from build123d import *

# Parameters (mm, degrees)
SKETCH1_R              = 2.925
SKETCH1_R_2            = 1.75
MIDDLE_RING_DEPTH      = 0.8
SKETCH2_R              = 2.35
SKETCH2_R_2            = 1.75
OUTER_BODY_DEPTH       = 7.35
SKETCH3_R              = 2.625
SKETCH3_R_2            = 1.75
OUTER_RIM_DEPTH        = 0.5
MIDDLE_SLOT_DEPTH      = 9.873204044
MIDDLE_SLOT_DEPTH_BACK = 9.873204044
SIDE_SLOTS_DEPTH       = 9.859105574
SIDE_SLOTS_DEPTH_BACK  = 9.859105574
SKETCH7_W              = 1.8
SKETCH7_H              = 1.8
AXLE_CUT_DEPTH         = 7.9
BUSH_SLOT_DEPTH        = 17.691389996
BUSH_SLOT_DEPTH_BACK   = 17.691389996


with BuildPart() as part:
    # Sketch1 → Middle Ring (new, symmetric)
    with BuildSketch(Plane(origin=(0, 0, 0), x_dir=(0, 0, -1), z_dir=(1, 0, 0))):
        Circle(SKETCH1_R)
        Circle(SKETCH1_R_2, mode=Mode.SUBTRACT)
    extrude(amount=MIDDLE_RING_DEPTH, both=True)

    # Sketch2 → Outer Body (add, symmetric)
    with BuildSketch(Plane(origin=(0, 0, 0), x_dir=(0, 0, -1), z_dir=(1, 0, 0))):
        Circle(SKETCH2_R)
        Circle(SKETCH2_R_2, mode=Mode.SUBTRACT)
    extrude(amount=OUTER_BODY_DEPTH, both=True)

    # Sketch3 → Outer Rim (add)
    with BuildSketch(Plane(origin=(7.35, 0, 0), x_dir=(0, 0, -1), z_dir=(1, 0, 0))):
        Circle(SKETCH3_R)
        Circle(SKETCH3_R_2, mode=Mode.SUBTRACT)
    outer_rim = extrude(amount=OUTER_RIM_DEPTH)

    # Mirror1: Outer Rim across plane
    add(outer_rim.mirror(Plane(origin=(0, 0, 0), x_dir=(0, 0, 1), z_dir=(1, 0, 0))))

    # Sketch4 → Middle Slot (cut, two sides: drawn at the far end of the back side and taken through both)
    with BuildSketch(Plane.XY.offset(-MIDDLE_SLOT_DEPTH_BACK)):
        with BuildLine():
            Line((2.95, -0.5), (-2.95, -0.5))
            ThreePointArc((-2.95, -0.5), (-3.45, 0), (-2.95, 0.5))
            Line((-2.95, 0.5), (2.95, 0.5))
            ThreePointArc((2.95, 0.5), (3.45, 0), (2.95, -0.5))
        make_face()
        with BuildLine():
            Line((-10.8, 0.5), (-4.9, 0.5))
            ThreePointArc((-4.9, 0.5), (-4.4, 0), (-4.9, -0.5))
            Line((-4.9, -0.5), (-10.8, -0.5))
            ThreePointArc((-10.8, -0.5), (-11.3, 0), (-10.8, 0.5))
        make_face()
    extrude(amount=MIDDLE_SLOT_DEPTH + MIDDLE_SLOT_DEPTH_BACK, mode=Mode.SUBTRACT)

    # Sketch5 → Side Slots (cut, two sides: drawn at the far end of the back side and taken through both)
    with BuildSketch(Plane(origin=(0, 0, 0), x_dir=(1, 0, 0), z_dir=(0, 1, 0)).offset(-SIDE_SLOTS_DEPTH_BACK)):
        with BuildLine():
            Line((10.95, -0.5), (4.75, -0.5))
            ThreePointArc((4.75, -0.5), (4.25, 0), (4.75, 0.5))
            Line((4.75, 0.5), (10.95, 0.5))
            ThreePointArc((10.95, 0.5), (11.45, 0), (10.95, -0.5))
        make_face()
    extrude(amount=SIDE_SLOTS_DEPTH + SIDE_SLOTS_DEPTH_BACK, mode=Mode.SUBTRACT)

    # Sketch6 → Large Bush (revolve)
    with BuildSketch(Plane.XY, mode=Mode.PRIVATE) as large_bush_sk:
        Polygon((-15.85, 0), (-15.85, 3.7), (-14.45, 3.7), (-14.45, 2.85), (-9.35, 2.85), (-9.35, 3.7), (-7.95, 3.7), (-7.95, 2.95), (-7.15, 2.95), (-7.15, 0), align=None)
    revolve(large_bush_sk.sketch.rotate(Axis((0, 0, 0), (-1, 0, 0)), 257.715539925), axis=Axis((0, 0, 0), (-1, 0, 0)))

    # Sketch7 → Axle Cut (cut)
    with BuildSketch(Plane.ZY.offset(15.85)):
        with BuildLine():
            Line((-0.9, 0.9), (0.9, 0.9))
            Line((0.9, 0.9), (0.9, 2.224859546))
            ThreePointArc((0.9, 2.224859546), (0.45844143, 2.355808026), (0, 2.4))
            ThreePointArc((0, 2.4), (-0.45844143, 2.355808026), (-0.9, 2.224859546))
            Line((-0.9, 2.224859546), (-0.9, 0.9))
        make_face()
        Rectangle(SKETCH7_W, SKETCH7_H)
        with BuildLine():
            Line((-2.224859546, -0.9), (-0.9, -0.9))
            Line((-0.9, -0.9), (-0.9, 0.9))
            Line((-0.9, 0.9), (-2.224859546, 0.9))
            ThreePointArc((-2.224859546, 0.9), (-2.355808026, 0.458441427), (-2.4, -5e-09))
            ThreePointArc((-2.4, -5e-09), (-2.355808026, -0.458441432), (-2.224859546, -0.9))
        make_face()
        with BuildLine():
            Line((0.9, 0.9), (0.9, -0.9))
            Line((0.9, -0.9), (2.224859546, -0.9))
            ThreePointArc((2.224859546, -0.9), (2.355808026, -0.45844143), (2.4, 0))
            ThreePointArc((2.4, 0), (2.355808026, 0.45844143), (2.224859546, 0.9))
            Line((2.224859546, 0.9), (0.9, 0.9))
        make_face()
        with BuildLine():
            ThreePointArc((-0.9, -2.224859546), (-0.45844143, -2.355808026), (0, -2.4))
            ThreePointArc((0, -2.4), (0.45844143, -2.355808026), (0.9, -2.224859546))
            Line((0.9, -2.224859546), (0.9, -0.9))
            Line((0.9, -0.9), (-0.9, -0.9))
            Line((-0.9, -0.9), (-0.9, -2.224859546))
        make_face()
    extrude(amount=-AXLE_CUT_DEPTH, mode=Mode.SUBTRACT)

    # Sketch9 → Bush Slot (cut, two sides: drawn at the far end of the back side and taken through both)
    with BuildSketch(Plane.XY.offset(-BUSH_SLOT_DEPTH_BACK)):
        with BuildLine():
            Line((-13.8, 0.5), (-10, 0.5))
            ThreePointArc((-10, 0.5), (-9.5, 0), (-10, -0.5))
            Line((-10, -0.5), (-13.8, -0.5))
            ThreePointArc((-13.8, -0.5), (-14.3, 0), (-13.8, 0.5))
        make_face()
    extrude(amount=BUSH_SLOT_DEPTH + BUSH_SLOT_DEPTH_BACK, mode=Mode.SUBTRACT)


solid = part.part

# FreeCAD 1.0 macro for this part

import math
import FreeCAD as App
import Part
import Sketcher
from FreeCAD import Vector

doc = App.newDocument("Part")
params = doc.addObject("Spreadsheet::Sheet", "Params")
for row, (alias, value) in enumerate([
    ("sketch1_diameter", "3.5 mm"),
    ("sketch1_diameter2", "5.85 mm"),
    ("pad1_length", "1.6 mm"),
    ("sketch2_diameter", "4.7 mm"),
    ("sketch2_diameter2", "3.5 mm"),
    ("pad2_length", "14.7 mm"),
    ("sketch3_diameter", "3.5 mm"),
    ("sketch3_diameter2", "5.25 mm"),
    ("pad3_length", "0.5 mm"),
    ("sketch4_radius", "0.5 mm"),
    ("sketch4_width", "5.9 mm"),
    ("sketch5_radius", "0.5 mm"),
    ("sketch5_width", "6.2 mm"),
    ("sketch6_width", "8.7 mm"),
    ("sketch6_width2", "0.8 mm"),
    ("sketch6_width3", "1.4 mm"),
    ("sketch6_height", "3.7 mm"),
    ("sketch6_height2", "2.95 mm"),
    ("revolution_angle", "360 deg"),
    ("sketch7_radius", "2.4 mm"),
    ("pocket3_length", "7.9 mm"),
    ("sketch8_radius", "0.5 mm"),
    ("sketch8_width", "3.8 mm"),
], start=1):
    params.set(f"A{row}", alias)
    params.set(f"B{row}", "=" + value)
    params.setAlias(f"B{row}", alias)

body = doc.addObject("PartDesign::Body", "Body")

sketch1 = body.newObject("Sketcher::SketchObject", "Sketch")
sketch1.AttachmentSupport = (doc.getObject("YZ_Plane"), [""])
sketch1.MapMode = "FlatFace"
sketch1.addGeometry(Part.Circle(Vector(0, 0, 0), Vector(0, 0, 1), 2.925), False)
sketch1.addGeometry(Part.Circle(Vector(0, 0, 0), Vector(0, 0, 1), 1.75), False)
sketch1.addConstraint(Sketcher.Constraint("Coincident", 0, 3, -1, 1))
sketch1.addConstraint(Sketcher.Constraint("Coincident", 1, 3, -1, 1))
sketch1.addConstraint(Sketcher.Constraint("Diameter", 1, 3.5))
sketch1.addConstraint(Sketcher.Constraint("Diameter", 0, 5.85))
sketch1.setExpression("Constraints[2]", "Params.sketch1_diameter")
sketch1.setExpression("Constraints[3]", "Params.sketch1_diameter2")
pad1 = body.newObject("PartDesign::Pad", "Pad")
pad1.Profile = sketch1
pad1.setExpression("Length", "Params.pad1_length")
pad1.Midplane = True

sketch2 = body.newObject("Sketcher::SketchObject", "Sketch001")
sketch2.AttachmentSupport = (doc.getObject("YZ_Plane"), [""])
sketch2.MapMode = "FlatFace"
sketch2.addGeometry(Part.Circle(Vector(0, 0, 0), Vector(0, 0, 1), 2.35), False)
sketch2.addGeometry(Part.Circle(Vector(0, 0, 0), Vector(0, 0, 1), 1.75), False)
sketch2.addConstraint(Sketcher.Constraint("Coincident", 0, 3, -1, 1))
sketch2.addConstraint(Sketcher.Constraint("Coincident", 1, 3, -1, 1))
sketch2.addConstraint(Sketcher.Constraint("Diameter", 0, 4.7))
sketch2.addConstraint(Sketcher.Constraint("Diameter", 1, 3.5))
sketch2.setExpression("Constraints[2]", "Params.sketch2_diameter")
sketch2.setExpression("Constraints[3]", "Params.sketch2_diameter2")
pad2 = body.newObject("PartDesign::Pad", "Pad001")
pad2.Profile = sketch2
pad2.setExpression("Length", "Params.pad2_length")
pad2.Midplane = True

sketch3 = body.newObject("Sketcher::SketchObject", "Sketch002")
sketch3.AttachmentSupport = (doc.getObject("YZ_Plane"), [""])
sketch3.MapMode = "FlatFace"
sketch3.AttachmentOffset = App.Placement(Vector(0, 0, 7.35), App.Rotation())
sketch3.addGeometry(Part.Circle(Vector(0, 0, 0), Vector(0, 0, 1), 2.625), False)
sketch3.addGeometry(Part.Circle(Vector(0, 0, 0), Vector(0, 0, 1), 1.75), False)
sketch3.addConstraint(Sketcher.Constraint("Coincident", 0, 3, -1, 1))
sketch3.addConstraint(Sketcher.Constraint("Coincident", 1, 3, -1, 1))
sketch3.addConstraint(Sketcher.Constraint("Diameter", 1, 3.5))
sketch3.addConstraint(Sketcher.Constraint("Diameter", 0, 5.25))
sketch3.setExpression("Constraints[2]", "Params.sketch3_diameter")
sketch3.setExpression("Constraints[3]", "Params.sketch3_diameter2")
pad3 = body.newObject("PartDesign::Pad", "Pad002")
pad3.Profile = sketch3
pad3.setExpression("Length", "Params.pad3_length")
doc.recompute()

mirrored = body.newObject("PartDesign::Mirrored", "Mirrored")
mirrored.Originals = [pad3]
mirrored.MirrorPlane = (doc.getObject("YZ_Plane"), [""])
body.Tip = mirrored

sketch4 = body.newObject("Sketcher::SketchObject", "Sketch003")
sketch4.AttachmentSupport = (doc.getObject("XY_Plane"), [""])
sketch4.MapMode = "FlatFace"
sketch4.addGeometry(Part.LineSegment(Vector(-2.95, -0.5, 0), Vector(2.95, -0.5, 0)), False)
sketch4.addGeometry(Part.ArcOfCircle(Part.Circle(Vector(2.95, 0, 0), Vector(0, 0, 1), 0.5), math.radians(-90), math.radians(90)), False)
sketch4.addGeometry(Part.LineSegment(Vector(2.95, 0.5, 0), Vector(-2.95, 0.5, 0)), False)
sketch4.addGeometry(Part.ArcOfCircle(Part.Circle(Vector(-2.95, 0, 0), Vector(0, 0, 1), 0.5), math.radians(90), math.radians(270)), False)
sketch4.addGeometry(Part.LineSegment(Vector(-4.9, 0.5, 0), Vector(-10.8, 0.5, 0)), False)
sketch4.addGeometry(Part.ArcOfCircle(Part.Circle(Vector(-10.8, 0, 0), Vector(0, 0, 1), 0.5), math.radians(90), math.radians(270)), False)
sketch4.addGeometry(Part.LineSegment(Vector(-10.8, -0.5, 0), Vector(-4.9, -0.5, 0)), False)
sketch4.addGeometry(Part.ArcOfCircle(Part.Circle(Vector(-4.9, 0, 0), Vector(0, 0, 1), 0.5), math.radians(-90), math.radians(90)), False)
sketch4.addConstraint(Sketcher.Constraint("Tangent", 0, 2, 1, 1))
sketch4.addConstraint(Sketcher.Constraint("Tangent", 1, 2, 2, 1))
sketch4.addConstraint(Sketcher.Constraint("Tangent", 2, 2, 3, 1))
sketch4.addConstraint(Sketcher.Constraint("Tangent", 3, 2, 0, 1))
sketch4.addConstraint(Sketcher.Constraint("Tangent", 4, 2, 5, 1))
sketch4.addConstraint(Sketcher.Constraint("Tangent", 5, 2, 6, 1))
sketch4.addConstraint(Sketcher.Constraint("Tangent", 6, 2, 7, 1))
sketch4.addConstraint(Sketcher.Constraint("Tangent", 7, 2, 4, 1))
sketch4.addConstraint(Sketcher.Constraint("Horizontal", 0))
sketch4.addConstraint(Sketcher.Constraint("Horizontal", 2))
sketch4.addConstraint(Sketcher.Constraint("Horizontal", 4))
sketch4.addConstraint(Sketcher.Constraint("Horizontal", 6))
sketch4.addConstraint(Sketcher.Constraint("Equal", 3, 5))
sketch4.addConstraint(Sketcher.Constraint("Symmetric", 1, 3, 3, 3, -1, 1))
sketch4.addConstraint(Sketcher.Constraint("PointOnObject", 5, 3, -1))
sketch4.addConstraint(Sketcher.Constraint("Equal", 2, 4))
sketch4.addConstraint(Sketcher.Constraint("Radius", 1, 0.5))
sketch4.addConstraint(Sketcher.Constraint("DistanceX", 0, 1, 0, 2, 5.9))
sketch4.addConstraint(Sketcher.Constraint("DistanceX", 5, 3, -1, 1, 10.8))
sketch4.setExpression("Constraints[16]", "Params.sketch4_radius")
sketch4.setExpression("Constraints[17]", "Params.sketch4_width")
pocket1 = body.newObject("PartDesign::Pocket", "Pocket")
pocket1.Profile = sketch4
pocket1.Type = "ThroughAll"
pocket1.Midplane = True

sketch5 = body.newObject("Sketcher::SketchObject", "Sketch004")
sketch5.AttachmentSupport = (doc.getObject("XZ_Plane"), [""])
sketch5.MapMode = "FlatFace"
sketch5.addGeometry(Part.LineSegment(Vector(4.75, 0.5, 0), Vector(10.95, 0.5, 0)), False)
sketch5.addGeometry(Part.ArcOfCircle(Part.Circle(Vector(10.95, 0, 0), Vector(0, 0, 1), 0.5), math.radians(-90), math.radians(90)), False)
sketch5.addGeometry(Part.LineSegment(Vector(10.95, -0.5, 0), Vector(4.75, -0.5, 0)), False)
sketch5.addGeometry(Part.ArcOfCircle(Part.Circle(Vector(4.75, 0, 0), Vector(0, 0, 1), 0.5), math.radians(90), math.radians(270)), False)
sketch5.addConstraint(Sketcher.Constraint("Tangent", 0, 2, 1, 2))
sketch5.addConstraint(Sketcher.Constraint("Tangent", 1, 1, 2, 1))
sketch5.addConstraint(Sketcher.Constraint("Tangent", 2, 2, 3, 2))
sketch5.addConstraint(Sketcher.Constraint("Tangent", 3, 1, 0, 1))
sketch5.addConstraint(Sketcher.Constraint("Horizontal", 0))
sketch5.addConstraint(Sketcher.Constraint("Horizontal", 2))
sketch5.addConstraint(Sketcher.Constraint("PointOnObject", 1, 3, -1))
sketch5.addConstraint(Sketcher.Constraint("Radius", 1, 0.5))
sketch5.addConstraint(Sketcher.Constraint("DistanceX", 0, 1, 0, 2, 6.2))
sketch5.addConstraint(Sketcher.Constraint("DistanceX", -1, 1, 1, 3, 10.95))
sketch5.setExpression("Constraints[7]", "Params.sketch5_radius")
sketch5.setExpression("Constraints[8]", "Params.sketch5_width")
pocket2 = body.newObject("PartDesign::Pocket", "Pocket001")
pocket2.Profile = sketch5
pocket2.Type = "ThroughAll"
pocket2.Midplane = True

sketch6 = body.newObject("Sketcher::SketchObject", "Sketch005")
sketch6.AttachmentSupport = (doc.getObject("XY_Plane"), [""])
sketch6.MapMode = "FlatFace"
sketch6.addGeometry(Part.LineSegment(Vector(-15.85, 3.7, 0), Vector(-15.85, 0, 0)), False)
sketch6.addGeometry(Part.LineSegment(Vector(-15.85, 0, 0), Vector(-7.15, 0, 0)), False)
sketch6.addGeometry(Part.LineSegment(Vector(-7.15, 0, 0), Vector(-7.15, 2.95, 0)), False)
sketch6.addGeometry(Part.LineSegment(Vector(-7.15, 2.95, 0), Vector(-7.95, 2.95, 0)), False)
sketch6.addGeometry(Part.LineSegment(Vector(-7.95, 2.95, 0), Vector(-7.95, 3.7, 0)), False)
sketch6.addGeometry(Part.LineSegment(Vector(-7.95, 3.7, 0), Vector(-9.35, 3.7, 0)), False)
sketch6.addGeometry(Part.LineSegment(Vector(-9.35, 3.7, 0), Vector(-9.35, 2.85, 0)), False)
sketch6.addGeometry(Part.LineSegment(Vector(-9.35, 2.85, 0), Vector(-14.45, 2.85, 0)), False)
sketch6.addGeometry(Part.LineSegment(Vector(-14.45, 2.85, 0), Vector(-14.45, 3.7, 0)), False)
sketch6.addGeometry(Part.LineSegment(Vector(-14.45, 3.7, 0), Vector(-15.85, 3.7, 0)), False)
sketch6.addConstraint(Sketcher.Constraint("Coincident", 0, 2, 1, 1))
sketch6.addConstraint(Sketcher.Constraint("Coincident", 1, 2, 2, 1))
sketch6.addConstraint(Sketcher.Constraint("Coincident", 2, 2, 3, 1))
sketch6.addConstraint(Sketcher.Constraint("Coincident", 3, 2, 4, 1))
sketch6.addConstraint(Sketcher.Constraint("Coincident", 4, 2, 5, 1))
sketch6.addConstraint(Sketcher.Constraint("Coincident", 5, 2, 6, 1))
sketch6.addConstraint(Sketcher.Constraint("Coincident", 6, 2, 7, 1))
sketch6.addConstraint(Sketcher.Constraint("Coincident", 7, 2, 8, 1))
sketch6.addConstraint(Sketcher.Constraint("Coincident", 8, 2, 9, 1))
sketch6.addConstraint(Sketcher.Constraint("Coincident", 9, 2, 0, 1))
sketch6.addConstraint(Sketcher.Constraint("Vertical", 0))
sketch6.addConstraint(Sketcher.Constraint("Horizontal", 1))
sketch6.addConstraint(Sketcher.Constraint("Vertical", 2))
sketch6.addConstraint(Sketcher.Constraint("Horizontal", 3))
sketch6.addConstraint(Sketcher.Constraint("Vertical", 4))
sketch6.addConstraint(Sketcher.Constraint("Horizontal", 5))
sketch6.addConstraint(Sketcher.Constraint("Vertical", 6))
sketch6.addConstraint(Sketcher.Constraint("Horizontal", 7))
sketch6.addConstraint(Sketcher.Constraint("Vertical", 8))
sketch6.addConstraint(Sketcher.Constraint("Horizontal", 9))
sketch6.addConstraint(Sketcher.Constraint("PointOnObject", 0, 2, -1))
sketch6.addConstraint(Sketcher.Constraint("Horizontal", 5, 2, 8, 2))
sketch6.addConstraint(Sketcher.Constraint("Equal", 5, 9))
sketch6.addConstraint(Sketcher.Constraint("DistanceX", 1, 1, 1, 2, 8.7))
sketch6.addConstraint(Sketcher.Constraint("DistanceX", 3, 2, 3, 1, 0.8))
sketch6.addConstraint(Sketcher.Constraint("DistanceX", 5, 2, 5, 1, 1.4))
sketch6.addConstraint(Sketcher.Constraint("DistanceY", 0, 2, 0, 1, 3.7))
sketch6.addConstraint(Sketcher.Constraint("DistanceY", 2, 1, 2, 2, 2.95))
sketch6.addConstraint(Sketcher.Constraint("DistanceY", 6, 2, 6, 1, 0.85))
sketch6.addConstraint(Sketcher.Constraint("DistanceX", 0, 2, -1, 1, 15.85))
sketch6.setExpression("Constraints[23]", "Params.sketch6_width")
sketch6.setExpression("Constraints[24]", "Params.sketch6_width2")
sketch6.setExpression("Constraints[25]", "Params.sketch6_width3")
sketch6.setExpression("Constraints[26]", "Params.sketch6_height")
sketch6.setExpression("Constraints[27]", "Params.sketch6_height2")
revolution = body.newObject("PartDesign::Revolution", "Revolution")
revolution.Profile = sketch6
revolution.ReferenceAxis = (sketch6, ["H_Axis"])
revolution.setExpression("Angle", "Params.revolution_angle")

sketch7 = body.newObject("Sketcher::SketchObject", "Sketch006")
sketch7.AttachmentSupport = (doc.getObject("YZ_Plane"), [""])
sketch7.MapMode = "FlatFace"
sketch7.AttachmentOffset = App.Placement(Vector(0, 0, -15.85), App.Rotation())
sketch7.addGeometry(Part.ArcOfCircle(Part.Circle(Vector(0, 0, 0), Vector(0, 0, 1), 2.4), math.radians(0), math.radians(22.024313)), False)
sketch7.addGeometry(Part.ArcOfCircle(Part.Circle(Vector(0, 0, 0), Vector(0, 0, 1), 2.4), math.radians(-22.024313), math.radians(0)), False)
sketch7.addGeometry(Part.LineSegment(Vector(2.22486, -0.9, 0), Vector(0.9, -0.9, 0)), False)
sketch7.addGeometry(Part.LineSegment(Vector(0.9, -0.9, 0), Vector(0.9, -2.22486, 0)), False)
sketch7.addGeometry(Part.ArcOfCircle(Part.Circle(Vector(0, 0, 0), Vector(0, 0, 1), 2.4), math.radians(-90), math.radians(-67.975687)), False)
sketch7.addGeometry(Part.ArcOfCircle(Part.Circle(Vector(0, 0, 0), Vector(0, 0, 1), 2.4), math.radians(-112.024313), math.radians(-90)), False)
sketch7.addGeometry(Part.LineSegment(Vector(-0.9, -2.22486, 0), Vector(-0.9, -0.9, 0)), False)
sketch7.addGeometry(Part.LineSegment(Vector(-0.9, -0.9, 0), Vector(-2.22486, -0.9, 0)), False)
sketch7.addGeometry(Part.ArcOfCircle(Part.Circle(Vector(0, 0, 0), Vector(0, 0, 1), 2.4), math.radians(180), math.radians(202.024313)), False)
sketch7.addGeometry(Part.ArcOfCircle(Part.Circle(Vector(0, 0, 0), Vector(0, 0, 1), 2.4), math.radians(157.975687), math.radians(180)), False)
sketch7.addGeometry(Part.LineSegment(Vector(-2.22486, 0.9, 0), Vector(-0.9, 0.9, 0)), False)
sketch7.addGeometry(Part.LineSegment(Vector(-0.9, 0.9, 0), Vector(-0.9, 2.22486, 0)), False)
sketch7.addGeometry(Part.ArcOfCircle(Part.Circle(Vector(0, 0, 0), Vector(0, 0, 1), 2.4), math.radians(90), math.radians(112.024313)), False)
sketch7.addGeometry(Part.ArcOfCircle(Part.Circle(Vector(0, 0, 0), Vector(0, 0, 1), 2.4), math.radians(67.975687), math.radians(90)), False)
sketch7.addGeometry(Part.LineSegment(Vector(0.9, 2.22486, 0), Vector(0.9, 0.9, 0)), False)
sketch7.addGeometry(Part.LineSegment(Vector(0.9, 0.9, 0), Vector(2.22486, 0.9, 0)), False)
sketch7.addConstraint(Sketcher.Constraint("Tangent", 0, 1, 1, 2))
sketch7.addConstraint(Sketcher.Constraint("Coincident", 1, 1, 2, 1))
sketch7.addConstraint(Sketcher.Constraint("Coincident", 2, 2, 3, 1))
sketch7.addConstraint(Sketcher.Constraint("Coincident", 3, 2, 4, 2))
sketch7.addConstraint(Sketcher.Constraint("Tangent", 4, 1, 5, 2))
sketch7.addConstraint(Sketcher.Constraint("Coincident", 5, 1, 6, 1))
sketch7.addConstraint(Sketcher.Constraint("Coincident", 6, 2, 7, 1))
sketch7.addConstraint(Sketcher.Constraint("Coincident", 7, 2, 8, 2))
sketch7.addConstraint(Sketcher.Constraint("Tangent", 8, 1, 9, 2))
sketch7.addConstraint(Sketcher.Constraint("Coincident", 9, 1, 10, 1))
sketch7.addConstraint(Sketcher.Constraint("Coincident", 10, 2, 11, 1))
sketch7.addConstraint(Sketcher.Constraint("Coincident", 11, 2, 12, 2))
sketch7.addConstraint(Sketcher.Constraint("Tangent", 12, 1, 13, 2))
sketch7.addConstraint(Sketcher.Constraint("Coincident", 13, 1, 14, 1))
sketch7.addConstraint(Sketcher.Constraint("Coincident", 14, 2, 15, 1))
sketch7.addConstraint(Sketcher.Constraint("Coincident", 15, 2, 0, 2))
sketch7.addConstraint(Sketcher.Constraint("Horizontal", 2))
sketch7.addConstraint(Sketcher.Constraint("Vertical", 3))
sketch7.addConstraint(Sketcher.Constraint("Vertical", 6))
sketch7.addConstraint(Sketcher.Constraint("Horizontal", 7))
sketch7.addConstraint(Sketcher.Constraint("Horizontal", 10))
sketch7.addConstraint(Sketcher.Constraint("Vertical", 11))
sketch7.addConstraint(Sketcher.Constraint("Vertical", 14))
sketch7.addConstraint(Sketcher.Constraint("Horizontal", 15))
sketch7.addConstraint(Sketcher.Constraint("Coincident", 0, 3, -1, 1))
sketch7.addConstraint(Sketcher.Constraint("Coincident", 4, 3, -1, 1))
sketch7.addConstraint(Sketcher.Constraint("Coincident", 8, 3, -1, 1))
sketch7.addConstraint(Sketcher.Constraint("Coincident", 12, 3, -1, 1))
sketch7.addConstraint(Sketcher.Constraint("Equal", 0, 1))
sketch7.addConstraint(Sketcher.Constraint("Equal", 1, 4))
sketch7.addConstraint(Sketcher.Constraint("Equal", 4, 5))
sketch7.addConstraint(Sketcher.Constraint("Equal", 5, 8))
sketch7.addConstraint(Sketcher.Constraint("Equal", 8, 9))
sketch7.addConstraint(Sketcher.Constraint("Equal", 9, 12))
sketch7.addConstraint(Sketcher.Constraint("Equal", 12, 13))
sketch7.addConstraint(Sketcher.Constraint("Symmetric", 2, 2, 10, 2, -1, 1))
sketch7.addConstraint(Sketcher.Constraint("Symmetric", 6, 2, 14, 2, -1, 1))
sketch7.addConstraint(Sketcher.Constraint("Symmetric", 2, 2, 6, 2, -2))
sketch7.addConstraint(Sketcher.Constraint("PointOnObject", 0, 1, -1))
sketch7.addConstraint(Sketcher.Constraint("PointOnObject", 4, 1, -2))
sketch7.addConstraint(Sketcher.Constraint("PointOnObject", 8, 1, -1))
sketch7.addConstraint(Sketcher.Constraint("PointOnObject", 12, 1, -2))
sketch7.addConstraint(Sketcher.Constraint("Equal", 15, 3))
sketch7.addConstraint(Sketcher.Constraint("Radius", 0, 2.4))
sketch7.addConstraint(Sketcher.Constraint("DistanceY", 1, 1, -1, 1, 0.9))
sketch7.setExpression("Constraints[43]", "Params.sketch7_radius")
pocket3 = body.newObject("PartDesign::Pocket", "Pocket002")
pocket3.Profile = sketch7
pocket3.setExpression("Length", "Params.pocket3_length")
pocket3.Reversed = True

sketch8 = body.newObject("Sketcher::SketchObject", "Sketch007")
sketch8.AttachmentSupport = (doc.getObject("XY_Plane"), [""])
sketch8.MapMode = "FlatFace"
sketch8.addGeometry(Part.LineSegment(Vector(-10, 0.5, 0), Vector(-13.8, 0.5, 0)), False)
sketch8.addGeometry(Part.ArcOfCircle(Part.Circle(Vector(-13.8, 0, 0), Vector(0, 0, 1), 0.5), math.radians(90), math.radians(270)), False)
sketch8.addGeometry(Part.LineSegment(Vector(-13.8, -0.5, 0), Vector(-10, -0.5, 0)), False)
sketch8.addGeometry(Part.ArcOfCircle(Part.Circle(Vector(-10, 0, 0), Vector(0, 0, 1), 0.5), math.radians(-90), math.radians(90)), False)
sketch8.addConstraint(Sketcher.Constraint("Tangent", 0, 2, 1, 1))
sketch8.addConstraint(Sketcher.Constraint("Tangent", 1, 2, 2, 1))
sketch8.addConstraint(Sketcher.Constraint("Tangent", 2, 2, 3, 1))
sketch8.addConstraint(Sketcher.Constraint("Tangent", 3, 2, 0, 1))
sketch8.addConstraint(Sketcher.Constraint("Horizontal", 0))
sketch8.addConstraint(Sketcher.Constraint("Horizontal", 2))
sketch8.addConstraint(Sketcher.Constraint("PointOnObject", 1, 3, -1))
sketch8.addConstraint(Sketcher.Constraint("Radius", 1, 0.5))
sketch8.addConstraint(Sketcher.Constraint("DistanceX", 0, 2, 0, 1, 3.8))
sketch8.addConstraint(Sketcher.Constraint("DistanceX", 3, 3, -1, 1, 10.0))
sketch8.setExpression("Constraints[7]", "Params.sketch8_radius")
sketch8.setExpression("Constraints[8]", "Params.sketch8_width")
pocket4 = body.newObject("PartDesign::Pocket", "Pocket003")
pocket4.Profile = sketch8
pocket4.Type = "ThroughAll"
pocket4.Midplane = True

doc.recompute()
